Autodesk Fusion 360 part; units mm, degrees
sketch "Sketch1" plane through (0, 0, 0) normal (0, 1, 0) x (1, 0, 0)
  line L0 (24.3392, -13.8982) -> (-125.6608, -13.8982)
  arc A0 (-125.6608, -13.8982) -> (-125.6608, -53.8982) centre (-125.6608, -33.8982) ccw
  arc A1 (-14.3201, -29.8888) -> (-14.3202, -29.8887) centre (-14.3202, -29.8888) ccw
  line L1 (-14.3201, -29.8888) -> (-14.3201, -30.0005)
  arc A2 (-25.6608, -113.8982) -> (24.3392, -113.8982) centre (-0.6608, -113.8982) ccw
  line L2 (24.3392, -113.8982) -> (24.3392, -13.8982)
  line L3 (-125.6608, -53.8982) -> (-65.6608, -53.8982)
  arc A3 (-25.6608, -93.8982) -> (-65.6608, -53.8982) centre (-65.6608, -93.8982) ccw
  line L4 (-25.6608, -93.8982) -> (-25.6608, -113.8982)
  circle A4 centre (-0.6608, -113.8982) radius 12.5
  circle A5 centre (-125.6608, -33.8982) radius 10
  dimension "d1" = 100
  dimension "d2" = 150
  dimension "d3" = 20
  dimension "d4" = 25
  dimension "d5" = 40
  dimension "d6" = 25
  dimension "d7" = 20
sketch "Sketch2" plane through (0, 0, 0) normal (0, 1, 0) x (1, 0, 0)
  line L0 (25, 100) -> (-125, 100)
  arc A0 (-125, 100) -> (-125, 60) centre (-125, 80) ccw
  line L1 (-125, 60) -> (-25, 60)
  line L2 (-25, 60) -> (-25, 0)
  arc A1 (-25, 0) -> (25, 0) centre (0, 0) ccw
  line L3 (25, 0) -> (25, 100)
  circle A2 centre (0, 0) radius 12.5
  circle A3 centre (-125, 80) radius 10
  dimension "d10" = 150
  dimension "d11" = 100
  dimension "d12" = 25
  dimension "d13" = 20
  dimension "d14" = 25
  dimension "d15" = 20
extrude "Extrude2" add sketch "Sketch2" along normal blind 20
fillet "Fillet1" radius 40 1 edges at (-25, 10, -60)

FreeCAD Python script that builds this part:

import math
import FreeCAD as App
import Part
import Sketcher
from FreeCAD import Vector


def edges_at(feature, points):
    """Names of the edges that pass closest to the given points."""
    edges = feature.Shape.Edges
    near = lambda p: min(range(len(edges)), key=lambda i: edges[i].distToShape(Part.Vertex(*p))[0])
    return sorted({f"Edge{near(p) + 1}" for p in points})

doc = App.newDocument("Part")
body = doc.addObject("PartDesign::Body", "Body")

sketch1 = body.newObject("Sketcher::SketchObject", "Sketch")
sketch1.AttachmentSupport = (doc.getObject("XZ_Plane"), [""])
sketch1.MapMode = "FlatFace"
sketch1.addGeometry([
    Part.LineSegment(Vector(25, 0, 0), Vector(25, -100, 0)),
    Part.LineSegment(Vector(25, -100, 0), Vector(-125, -100, 0)),
    Part.ArcOfCircle(Part.Circle(Vector(-125, -80, 0), Vector(0, 0, 1), 20), math.radians(90), math.radians(270)),
    Part.LineSegment(Vector(-125, -60, 0), Vector(-25, -60, 0)),
    Part.LineSegment(Vector(-25, -60, 0), Vector(-25, 0, 0)),
    Part.ArcOfCircle(Part.Circle(Vector(0, 0, 0), Vector(0, 0, 1), 25), math.radians(0), math.radians(180)),
    Part.Circle(Vector(0, 0, 0), Vector(0, 0, 1), 12.5),
    Part.Circle(Vector(-125, -80, 0), Vector(0, 0, 1), 10),
], False)
sketch1.addConstraint([
    Sketcher.Constraint("Coincident", 0, 2, 1, 1),
    Sketcher.Constraint("Tangent", 1, 2, 2, 2),
    Sketcher.Constraint("Tangent", 2, 1, 3, 1),
    Sketcher.Constraint("Coincident", 3, 2, 4, 1),
    Sketcher.Constraint("Tangent", 4, 2, 5, 2),
    Sketcher.Constraint("Tangent", 5, 1, 0, 1),
    Sketcher.Constraint("Vertical", 0),
    Sketcher.Constraint("Horizontal", 1),
    Sketcher.Constraint("Horizontal", 3),
    Sketcher.Constraint("Vertical", 4),
    Sketcher.Constraint("Coincident", 5, 3, -1, 1),
    Sketcher.Constraint("Coincident", 6, 3, -1, 1),
    Sketcher.Constraint("Coincident", 7, 3, 2, 3),
    Sketcher.Constraint("Equal", 3, 0),
    Sketcher.Constraint("Diameter", 6, 25.0),
    Sketcher.Constraint("Diameter", 7, 20.0),
    Sketcher.Constraint("Radius", 2, 20.0),
    Sketcher.Constraint("Radius", 5, 25.0),
    Sketcher.Constraint("DistanceX", 1, 2, 1, 1, 150.0),
])
pad1 = body.newObject("PartDesign::Pad", "Pad")
pad1.Profile = sketch1
pad1.Length = 20
pad1.Reversed = True
doc.recompute()

fillet = body.newObject("PartDesign::Fillet", "Fillet")
fillet.Base = (pad1, edges_at(pad1, [(-25, 10, -60)]))
fillet.Radius = 40

doc.recompute()
